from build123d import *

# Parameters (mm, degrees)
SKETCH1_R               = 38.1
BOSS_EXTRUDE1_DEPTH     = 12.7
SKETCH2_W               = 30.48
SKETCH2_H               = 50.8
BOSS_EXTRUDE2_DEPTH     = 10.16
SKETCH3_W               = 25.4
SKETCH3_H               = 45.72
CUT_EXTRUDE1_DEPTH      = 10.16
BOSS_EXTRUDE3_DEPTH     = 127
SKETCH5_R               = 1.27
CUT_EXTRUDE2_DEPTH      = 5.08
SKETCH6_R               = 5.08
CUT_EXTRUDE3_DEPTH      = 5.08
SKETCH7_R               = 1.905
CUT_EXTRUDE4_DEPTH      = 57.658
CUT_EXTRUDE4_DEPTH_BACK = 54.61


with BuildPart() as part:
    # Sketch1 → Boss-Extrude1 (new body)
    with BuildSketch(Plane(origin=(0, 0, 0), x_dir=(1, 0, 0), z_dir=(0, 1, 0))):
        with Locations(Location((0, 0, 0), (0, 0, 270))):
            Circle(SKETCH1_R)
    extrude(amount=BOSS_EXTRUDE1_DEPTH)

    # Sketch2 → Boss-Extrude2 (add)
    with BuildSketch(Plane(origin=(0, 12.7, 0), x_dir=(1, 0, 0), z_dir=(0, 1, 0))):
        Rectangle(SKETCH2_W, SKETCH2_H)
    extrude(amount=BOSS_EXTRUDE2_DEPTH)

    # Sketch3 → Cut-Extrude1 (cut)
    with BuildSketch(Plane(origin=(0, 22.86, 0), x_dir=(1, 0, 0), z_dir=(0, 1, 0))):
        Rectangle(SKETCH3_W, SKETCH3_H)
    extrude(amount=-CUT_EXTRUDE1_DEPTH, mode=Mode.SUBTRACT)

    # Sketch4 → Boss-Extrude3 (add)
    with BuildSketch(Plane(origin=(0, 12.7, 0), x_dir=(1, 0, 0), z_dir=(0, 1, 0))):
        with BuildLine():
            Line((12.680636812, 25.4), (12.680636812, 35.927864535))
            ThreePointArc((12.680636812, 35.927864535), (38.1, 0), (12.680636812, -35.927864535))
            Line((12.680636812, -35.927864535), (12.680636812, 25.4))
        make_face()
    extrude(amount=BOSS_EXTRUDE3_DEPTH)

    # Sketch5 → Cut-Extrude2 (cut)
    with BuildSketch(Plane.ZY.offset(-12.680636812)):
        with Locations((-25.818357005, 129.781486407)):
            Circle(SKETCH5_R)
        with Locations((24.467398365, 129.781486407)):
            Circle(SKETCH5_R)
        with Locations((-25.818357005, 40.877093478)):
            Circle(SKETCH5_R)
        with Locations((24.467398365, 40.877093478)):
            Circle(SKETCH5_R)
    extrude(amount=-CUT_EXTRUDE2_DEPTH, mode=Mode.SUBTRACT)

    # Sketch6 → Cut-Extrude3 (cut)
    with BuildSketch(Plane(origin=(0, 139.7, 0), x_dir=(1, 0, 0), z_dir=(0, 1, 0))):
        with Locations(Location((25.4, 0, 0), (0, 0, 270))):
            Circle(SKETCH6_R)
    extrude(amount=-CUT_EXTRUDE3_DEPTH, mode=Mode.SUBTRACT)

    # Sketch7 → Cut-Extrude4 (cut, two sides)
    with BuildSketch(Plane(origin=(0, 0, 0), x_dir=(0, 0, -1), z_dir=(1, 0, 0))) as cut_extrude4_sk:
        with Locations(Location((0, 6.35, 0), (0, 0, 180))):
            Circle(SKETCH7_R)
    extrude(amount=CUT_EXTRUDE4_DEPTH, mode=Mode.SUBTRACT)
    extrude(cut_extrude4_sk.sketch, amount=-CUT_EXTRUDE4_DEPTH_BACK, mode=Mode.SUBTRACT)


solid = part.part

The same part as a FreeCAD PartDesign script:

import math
import FreeCAD as App
import Part
import Sketcher

V = App.Vector
Q = App.Units.Quantity


def add_polygon(sketch, points):
    """Adds a closed chain of lines whose ends are joined by coincident constraints."""
    first, n = sketch.GeometryCount, len(points)
    for a, b in zip(points, points[1:] + points[:1]):
        sketch.addGeometry(Part.LineSegment(App.Vector(*a, 0), App.Vector(*b, 0)), False)
    for i in range(n):
        sketch.addConstraint(Sketcher.Constraint("Coincident", first + i, 2, first + (i + 1) % n, 1))

doc = App.newDocument("Part")
params = doc.addObject("Spreadsheet::Sheet", "Params")
for row, (alias, value) in enumerate([
    ("sketch1_diameter", "3 in"),
    ("pad1_length", "0.5 in"),
    ("sketch2_height", "2 in"),
    ("sketch2_width", "1.2 in"),
    ("pad2_length", "0.4 in"),
    ("sketch3_width", "1 in"),
    ("sketch3_height", "1.8 in"),
    ("pocket1_length", "0.4 in"),
    ("sketch4_radius", "1.5 in"),
    ("pad3_length", "5 in"),
    ("sketch5_diameter", "0.1 in"),
    ("pocket2_length", "0.2 in"),
    ("sketch6_diameter", "0.4 in"),
    ("pocket3_length", "0.2 in"),
    ("sketch7_diameter", "0.15 in"),
], start=1):
    params.set(f"A{row}", alias)
    params.set(f"B{row}", "=" + value)
    params.setAlias(f"B{row}", alias)

body = doc.addObject("PartDesign::Body", "Body")

sketch1 = body.newObject("Sketcher::SketchObject", "Sketch")
sketch1.AttachmentSupport = (doc.getObject("XZ_Plane"), [""])
sketch1.MapMode = "FlatFace"
sketch1.addGeometry(Part.Circle(V(0, 0, 0), V(0, 0, 1), 38), False)
sketch1.addConstraint(Sketcher.Constraint("Coincident", 0, 3, -1, 1))
sketch1.addConstraint(Sketcher.Constraint("Diameter", 0, Q("3 in")))
sketch1.setExpression("Constraints[1]", "Params.sketch1_diameter")
pad1 = body.newObject("PartDesign::Pad", "Pad")
pad1.Profile = sketch1
pad1.setExpression("Length", "Params.pad1_length")
pad1.Reversed = True

sketch2 = body.newObject("Sketcher::SketchObject", "Sketch001")
sketch2.AttachmentSupport = (doc.getObject("XZ_Plane"), [""])
sketch2.MapMode = "FlatFace"
sketch2.AttachmentOffset = App.Placement(V(0, 0, -0.5 * 25.4), App.Rotation())
add_polygon(sketch2, [(-15, -25), (-15, 25), (15, 25), (15, -25)])
sketch2.addConstraint(Sketcher.Constraint("Vertical", 0))
sketch2.addConstraint(Sketcher.Constraint("Horizontal", 1))
sketch2.addConstraint(Sketcher.Constraint("Vertical", 2))
sketch2.addConstraint(Sketcher.Constraint("Horizontal", 3))
sketch2.addConstraint(Sketcher.Constraint("Symmetric", 0, 2, 2, 2, -1, 1))
sketch2.addConstraint(Sketcher.Constraint("DistanceY", 0, 1, 0, 2, Q("2 in")))
sketch2.addConstraint(Sketcher.Constraint("DistanceX", 1, 1, 1, 2, Q("1.2 in")))
sketch2.setExpression("Constraints[9]", "Params.sketch2_height")
sketch2.setExpression("Constraints[10]", "Params.sketch2_width")
pad2 = body.newObject("PartDesign::Pad", "Pad001")
pad2.Profile = sketch2
pad2.setExpression("Length", "Params.pad2_length")
pad2.Reversed = True

sketch3 = body.newObject("Sketcher::SketchObject", "Sketch002")
sketch3.AttachmentSupport = (doc.getObject("XZ_Plane"), [""])
sketch3.MapMode = "FlatFace"
sketch3.AttachmentOffset = App.Placement(V(0, 0, -0.9 * 25.4), App.Rotation())
add_polygon(sketch3, [(-13, -23), (-13, 23), (13, 23), (13, -23)])
sketch3.addConstraint(Sketcher.Constraint("Vertical", 0))
sketch3.addConstraint(Sketcher.Constraint("Horizontal", 1))
sketch3.addConstraint(Sketcher.Constraint("Vertical", 2))
sketch3.addConstraint(Sketcher.Constraint("Horizontal", 3))
sketch3.addConstraint(Sketcher.Constraint("Symmetric", 0, 2, 2, 2, -1, 1))
sketch3.addConstraint(Sketcher.Constraint("DistanceX", 1, 1, 1, 2, Q("1 in")))
sketch3.addConstraint(Sketcher.Constraint("DistanceY", 0, 1, 0, 2, Q("1.8 in")))
sketch3.setExpression("Constraints[9]", "Params.sketch3_width")
sketch3.setExpression("Constraints[10]", "Params.sketch3_height")
pocket1 = body.newObject("PartDesign::Pocket", "Pocket")
pocket1.Profile = sketch3
pocket1.setExpression("Length", "Params.pocket1_length")
pocket1.Reversed = True

sketch4 = body.newObject("Sketcher::SketchObject", "Sketch003")
sketch4.AttachmentSupport = (doc.getObject("XZ_Plane"), [""])
sketch4.MapMode = "FlatFace"
sketch4.AttachmentOffset = App.Placement(V(0, 0, -0.5 * 25.4), App.Rotation())
sketch4.addGeometry(Part.ArcOfCircle(Part.Circle(V(0, 0, 0), V(0, 0, 1), 38), math.radians(-71), math.radians(71)), False)
sketch4.addGeometry(Part.LineSegment(V(13, -36, 0), V(13, 36, 0)), False)
sketch4.addConstraint(Sketcher.Constraint("Coincident", 0, 1, 1, 1))
sketch4.addConstraint(Sketcher.Constraint("Coincident", 1, 2, 0, 2))
sketch4.addConstraint(Sketcher.Constraint("Vertical", 1))
sketch4.addConstraint(Sketcher.Constraint("Coincident", 0, 3, -1, 1))
sketch4.addConstraint(Sketcher.Constraint("Radius", 0, Q("1.5 in")))
sketch4.addConstraint(Sketcher.Constraint("DistanceY", 1, 1, 1, 2, 71.855729))
sketch4.setExpression("Constraints[4]", "Params.sketch4_radius")
pad3 = body.newObject("PartDesign::Pad", "Pad002")
pad3.Profile = sketch4
pad3.setExpression("Length", "Params.pad3_length")
pad3.Reversed = True

sketch5 = body.newObject("Sketcher::SketchObject", "Sketch004")
sketch5.AttachmentSupport = (doc.getObject("YZ_Plane"), [""])
sketch5.MapMode = "FlatFace"
sketch5.AttachmentOffset = App.Placement(V(0, 0, 12.680637), App.Rotation())
sketch5.addGeometry(Part.Circle(V(129.8, -25.8, 0), V(0, 0, 1), 1.3), False)
sketch5.addGeometry(Part.Circle(V(129.8, 24.5, 0), V(0, 0, 1), 1.3), False)
sketch5.addGeometry(Part.Circle(V(40.9, -25.8, 0), V(0, 0, 1), 1.3), False)
sketch5.addGeometry(Part.Circle(V(40.9, 24.5, 0), V(0, 0, 1), 1.3), False)
sketch5.addConstraint(Sketcher.Constraint("Equal", 0, 1))
sketch5.addConstraint(Sketcher.Constraint("Equal", 1, 2))
sketch5.addConstraint(Sketcher.Constraint("Equal", 2, 3))
sketch5.addConstraint(Sketcher.Constraint("Horizontal", 0, 3, 2, 3))
sketch5.addConstraint(Sketcher.Constraint("Horizontal", 1, 3, 3, 3))
sketch5.addConstraint(Sketcher.Constraint("Vertical", 0, 3, 1, 3))
sketch5.addConstraint(Sketcher.Constraint("Vertical", 2, 3, 3, 3))
sketch5.addConstraint(Sketcher.Constraint("Diameter", 0, Q("0.1 in")))
sketch5.addConstraint(Sketcher.Constraint("DistanceY", -1, 1, 1, 3, 24.467398))
sketch5.addConstraint(Sketcher.Constraint("DistanceX", -1, 1, 0, 3, 129.781486))
sketch5.addConstraint(Sketcher.Constraint("DistanceY", 0, 3, -1, 1, 25.818357))
sketch5.addConstraint(Sketcher.Constraint("DistanceX", -1, 1, 2, 3, 40.877093))
sketch5.setExpression("Constraints[7]", "Params.sketch5_diameter")
pocket2 = body.newObject("PartDesign::Pocket", "Pocket001")
pocket2.Profile = sketch5
pocket2.setExpression("Length", "Params.pocket2_length")
pocket2.Reversed = True

sketch6 = body.newObject("Sketcher::SketchObject", "Sketch005")
sketch6.AttachmentSupport = (doc.getObject("XZ_Plane"), [""])
sketch6.MapMode = "FlatFace"
sketch6.AttachmentOffset = App.Placement(V(0, 0, -5.5 * 25.4), App.Rotation())
sketch6.addGeometry(Part.Circle(V(25, 0, 0), V(0, 0, 1), 5), False)
sketch6.addConstraint(Sketcher.Constraint("PointOnObject", 0, 3, -1))
sketch6.addConstraint(Sketcher.Constraint("Diameter", 0, Q("0.4 in")))
sketch6.addConstraint(Sketcher.Constraint("DistanceX", -1, 1, 0, 3, Q("1 in")))
sketch6.setExpression("Constraints[1]", "Params.sketch6_diameter")
pocket3 = body.newObject("PartDesign::Pocket", "Pocket002")
pocket3.Profile = sketch6
pocket3.setExpression("Length", "Params.pocket3_length")
pocket3.Reversed = True

sketch7 = body.newObject("Sketcher::SketchObject", "Sketch006")
sketch7.AttachmentSupport = (doc.getObject("YZ_Plane"), [""])
sketch7.MapMode = "FlatFace"
sketch7.addGeometry(Part.Circle(V(6.3, 0, 0), V(0, 0, 1), 1.9), False)
sketch7.addConstraint(Sketcher.Constraint("PointOnObject", 0, 3, -1))
sketch7.addConstraint(Sketcher.Constraint("Diameter", 0, Q("0.15 in")))
sketch7.addConstraint(Sketcher.Constraint("DistanceX", -1, 1, 0, 3, Q("0.25 in")))
sketch7.setExpression("Constraints[1]", "Params.sketch7_diameter")
pocket4 = body.newObject("PartDesign::Pocket", "Pocket003")
pocket4.Profile = sketch7
pocket4.Type = "ThroughAll"
pocket4.Midplane = True

doc.recompute()
